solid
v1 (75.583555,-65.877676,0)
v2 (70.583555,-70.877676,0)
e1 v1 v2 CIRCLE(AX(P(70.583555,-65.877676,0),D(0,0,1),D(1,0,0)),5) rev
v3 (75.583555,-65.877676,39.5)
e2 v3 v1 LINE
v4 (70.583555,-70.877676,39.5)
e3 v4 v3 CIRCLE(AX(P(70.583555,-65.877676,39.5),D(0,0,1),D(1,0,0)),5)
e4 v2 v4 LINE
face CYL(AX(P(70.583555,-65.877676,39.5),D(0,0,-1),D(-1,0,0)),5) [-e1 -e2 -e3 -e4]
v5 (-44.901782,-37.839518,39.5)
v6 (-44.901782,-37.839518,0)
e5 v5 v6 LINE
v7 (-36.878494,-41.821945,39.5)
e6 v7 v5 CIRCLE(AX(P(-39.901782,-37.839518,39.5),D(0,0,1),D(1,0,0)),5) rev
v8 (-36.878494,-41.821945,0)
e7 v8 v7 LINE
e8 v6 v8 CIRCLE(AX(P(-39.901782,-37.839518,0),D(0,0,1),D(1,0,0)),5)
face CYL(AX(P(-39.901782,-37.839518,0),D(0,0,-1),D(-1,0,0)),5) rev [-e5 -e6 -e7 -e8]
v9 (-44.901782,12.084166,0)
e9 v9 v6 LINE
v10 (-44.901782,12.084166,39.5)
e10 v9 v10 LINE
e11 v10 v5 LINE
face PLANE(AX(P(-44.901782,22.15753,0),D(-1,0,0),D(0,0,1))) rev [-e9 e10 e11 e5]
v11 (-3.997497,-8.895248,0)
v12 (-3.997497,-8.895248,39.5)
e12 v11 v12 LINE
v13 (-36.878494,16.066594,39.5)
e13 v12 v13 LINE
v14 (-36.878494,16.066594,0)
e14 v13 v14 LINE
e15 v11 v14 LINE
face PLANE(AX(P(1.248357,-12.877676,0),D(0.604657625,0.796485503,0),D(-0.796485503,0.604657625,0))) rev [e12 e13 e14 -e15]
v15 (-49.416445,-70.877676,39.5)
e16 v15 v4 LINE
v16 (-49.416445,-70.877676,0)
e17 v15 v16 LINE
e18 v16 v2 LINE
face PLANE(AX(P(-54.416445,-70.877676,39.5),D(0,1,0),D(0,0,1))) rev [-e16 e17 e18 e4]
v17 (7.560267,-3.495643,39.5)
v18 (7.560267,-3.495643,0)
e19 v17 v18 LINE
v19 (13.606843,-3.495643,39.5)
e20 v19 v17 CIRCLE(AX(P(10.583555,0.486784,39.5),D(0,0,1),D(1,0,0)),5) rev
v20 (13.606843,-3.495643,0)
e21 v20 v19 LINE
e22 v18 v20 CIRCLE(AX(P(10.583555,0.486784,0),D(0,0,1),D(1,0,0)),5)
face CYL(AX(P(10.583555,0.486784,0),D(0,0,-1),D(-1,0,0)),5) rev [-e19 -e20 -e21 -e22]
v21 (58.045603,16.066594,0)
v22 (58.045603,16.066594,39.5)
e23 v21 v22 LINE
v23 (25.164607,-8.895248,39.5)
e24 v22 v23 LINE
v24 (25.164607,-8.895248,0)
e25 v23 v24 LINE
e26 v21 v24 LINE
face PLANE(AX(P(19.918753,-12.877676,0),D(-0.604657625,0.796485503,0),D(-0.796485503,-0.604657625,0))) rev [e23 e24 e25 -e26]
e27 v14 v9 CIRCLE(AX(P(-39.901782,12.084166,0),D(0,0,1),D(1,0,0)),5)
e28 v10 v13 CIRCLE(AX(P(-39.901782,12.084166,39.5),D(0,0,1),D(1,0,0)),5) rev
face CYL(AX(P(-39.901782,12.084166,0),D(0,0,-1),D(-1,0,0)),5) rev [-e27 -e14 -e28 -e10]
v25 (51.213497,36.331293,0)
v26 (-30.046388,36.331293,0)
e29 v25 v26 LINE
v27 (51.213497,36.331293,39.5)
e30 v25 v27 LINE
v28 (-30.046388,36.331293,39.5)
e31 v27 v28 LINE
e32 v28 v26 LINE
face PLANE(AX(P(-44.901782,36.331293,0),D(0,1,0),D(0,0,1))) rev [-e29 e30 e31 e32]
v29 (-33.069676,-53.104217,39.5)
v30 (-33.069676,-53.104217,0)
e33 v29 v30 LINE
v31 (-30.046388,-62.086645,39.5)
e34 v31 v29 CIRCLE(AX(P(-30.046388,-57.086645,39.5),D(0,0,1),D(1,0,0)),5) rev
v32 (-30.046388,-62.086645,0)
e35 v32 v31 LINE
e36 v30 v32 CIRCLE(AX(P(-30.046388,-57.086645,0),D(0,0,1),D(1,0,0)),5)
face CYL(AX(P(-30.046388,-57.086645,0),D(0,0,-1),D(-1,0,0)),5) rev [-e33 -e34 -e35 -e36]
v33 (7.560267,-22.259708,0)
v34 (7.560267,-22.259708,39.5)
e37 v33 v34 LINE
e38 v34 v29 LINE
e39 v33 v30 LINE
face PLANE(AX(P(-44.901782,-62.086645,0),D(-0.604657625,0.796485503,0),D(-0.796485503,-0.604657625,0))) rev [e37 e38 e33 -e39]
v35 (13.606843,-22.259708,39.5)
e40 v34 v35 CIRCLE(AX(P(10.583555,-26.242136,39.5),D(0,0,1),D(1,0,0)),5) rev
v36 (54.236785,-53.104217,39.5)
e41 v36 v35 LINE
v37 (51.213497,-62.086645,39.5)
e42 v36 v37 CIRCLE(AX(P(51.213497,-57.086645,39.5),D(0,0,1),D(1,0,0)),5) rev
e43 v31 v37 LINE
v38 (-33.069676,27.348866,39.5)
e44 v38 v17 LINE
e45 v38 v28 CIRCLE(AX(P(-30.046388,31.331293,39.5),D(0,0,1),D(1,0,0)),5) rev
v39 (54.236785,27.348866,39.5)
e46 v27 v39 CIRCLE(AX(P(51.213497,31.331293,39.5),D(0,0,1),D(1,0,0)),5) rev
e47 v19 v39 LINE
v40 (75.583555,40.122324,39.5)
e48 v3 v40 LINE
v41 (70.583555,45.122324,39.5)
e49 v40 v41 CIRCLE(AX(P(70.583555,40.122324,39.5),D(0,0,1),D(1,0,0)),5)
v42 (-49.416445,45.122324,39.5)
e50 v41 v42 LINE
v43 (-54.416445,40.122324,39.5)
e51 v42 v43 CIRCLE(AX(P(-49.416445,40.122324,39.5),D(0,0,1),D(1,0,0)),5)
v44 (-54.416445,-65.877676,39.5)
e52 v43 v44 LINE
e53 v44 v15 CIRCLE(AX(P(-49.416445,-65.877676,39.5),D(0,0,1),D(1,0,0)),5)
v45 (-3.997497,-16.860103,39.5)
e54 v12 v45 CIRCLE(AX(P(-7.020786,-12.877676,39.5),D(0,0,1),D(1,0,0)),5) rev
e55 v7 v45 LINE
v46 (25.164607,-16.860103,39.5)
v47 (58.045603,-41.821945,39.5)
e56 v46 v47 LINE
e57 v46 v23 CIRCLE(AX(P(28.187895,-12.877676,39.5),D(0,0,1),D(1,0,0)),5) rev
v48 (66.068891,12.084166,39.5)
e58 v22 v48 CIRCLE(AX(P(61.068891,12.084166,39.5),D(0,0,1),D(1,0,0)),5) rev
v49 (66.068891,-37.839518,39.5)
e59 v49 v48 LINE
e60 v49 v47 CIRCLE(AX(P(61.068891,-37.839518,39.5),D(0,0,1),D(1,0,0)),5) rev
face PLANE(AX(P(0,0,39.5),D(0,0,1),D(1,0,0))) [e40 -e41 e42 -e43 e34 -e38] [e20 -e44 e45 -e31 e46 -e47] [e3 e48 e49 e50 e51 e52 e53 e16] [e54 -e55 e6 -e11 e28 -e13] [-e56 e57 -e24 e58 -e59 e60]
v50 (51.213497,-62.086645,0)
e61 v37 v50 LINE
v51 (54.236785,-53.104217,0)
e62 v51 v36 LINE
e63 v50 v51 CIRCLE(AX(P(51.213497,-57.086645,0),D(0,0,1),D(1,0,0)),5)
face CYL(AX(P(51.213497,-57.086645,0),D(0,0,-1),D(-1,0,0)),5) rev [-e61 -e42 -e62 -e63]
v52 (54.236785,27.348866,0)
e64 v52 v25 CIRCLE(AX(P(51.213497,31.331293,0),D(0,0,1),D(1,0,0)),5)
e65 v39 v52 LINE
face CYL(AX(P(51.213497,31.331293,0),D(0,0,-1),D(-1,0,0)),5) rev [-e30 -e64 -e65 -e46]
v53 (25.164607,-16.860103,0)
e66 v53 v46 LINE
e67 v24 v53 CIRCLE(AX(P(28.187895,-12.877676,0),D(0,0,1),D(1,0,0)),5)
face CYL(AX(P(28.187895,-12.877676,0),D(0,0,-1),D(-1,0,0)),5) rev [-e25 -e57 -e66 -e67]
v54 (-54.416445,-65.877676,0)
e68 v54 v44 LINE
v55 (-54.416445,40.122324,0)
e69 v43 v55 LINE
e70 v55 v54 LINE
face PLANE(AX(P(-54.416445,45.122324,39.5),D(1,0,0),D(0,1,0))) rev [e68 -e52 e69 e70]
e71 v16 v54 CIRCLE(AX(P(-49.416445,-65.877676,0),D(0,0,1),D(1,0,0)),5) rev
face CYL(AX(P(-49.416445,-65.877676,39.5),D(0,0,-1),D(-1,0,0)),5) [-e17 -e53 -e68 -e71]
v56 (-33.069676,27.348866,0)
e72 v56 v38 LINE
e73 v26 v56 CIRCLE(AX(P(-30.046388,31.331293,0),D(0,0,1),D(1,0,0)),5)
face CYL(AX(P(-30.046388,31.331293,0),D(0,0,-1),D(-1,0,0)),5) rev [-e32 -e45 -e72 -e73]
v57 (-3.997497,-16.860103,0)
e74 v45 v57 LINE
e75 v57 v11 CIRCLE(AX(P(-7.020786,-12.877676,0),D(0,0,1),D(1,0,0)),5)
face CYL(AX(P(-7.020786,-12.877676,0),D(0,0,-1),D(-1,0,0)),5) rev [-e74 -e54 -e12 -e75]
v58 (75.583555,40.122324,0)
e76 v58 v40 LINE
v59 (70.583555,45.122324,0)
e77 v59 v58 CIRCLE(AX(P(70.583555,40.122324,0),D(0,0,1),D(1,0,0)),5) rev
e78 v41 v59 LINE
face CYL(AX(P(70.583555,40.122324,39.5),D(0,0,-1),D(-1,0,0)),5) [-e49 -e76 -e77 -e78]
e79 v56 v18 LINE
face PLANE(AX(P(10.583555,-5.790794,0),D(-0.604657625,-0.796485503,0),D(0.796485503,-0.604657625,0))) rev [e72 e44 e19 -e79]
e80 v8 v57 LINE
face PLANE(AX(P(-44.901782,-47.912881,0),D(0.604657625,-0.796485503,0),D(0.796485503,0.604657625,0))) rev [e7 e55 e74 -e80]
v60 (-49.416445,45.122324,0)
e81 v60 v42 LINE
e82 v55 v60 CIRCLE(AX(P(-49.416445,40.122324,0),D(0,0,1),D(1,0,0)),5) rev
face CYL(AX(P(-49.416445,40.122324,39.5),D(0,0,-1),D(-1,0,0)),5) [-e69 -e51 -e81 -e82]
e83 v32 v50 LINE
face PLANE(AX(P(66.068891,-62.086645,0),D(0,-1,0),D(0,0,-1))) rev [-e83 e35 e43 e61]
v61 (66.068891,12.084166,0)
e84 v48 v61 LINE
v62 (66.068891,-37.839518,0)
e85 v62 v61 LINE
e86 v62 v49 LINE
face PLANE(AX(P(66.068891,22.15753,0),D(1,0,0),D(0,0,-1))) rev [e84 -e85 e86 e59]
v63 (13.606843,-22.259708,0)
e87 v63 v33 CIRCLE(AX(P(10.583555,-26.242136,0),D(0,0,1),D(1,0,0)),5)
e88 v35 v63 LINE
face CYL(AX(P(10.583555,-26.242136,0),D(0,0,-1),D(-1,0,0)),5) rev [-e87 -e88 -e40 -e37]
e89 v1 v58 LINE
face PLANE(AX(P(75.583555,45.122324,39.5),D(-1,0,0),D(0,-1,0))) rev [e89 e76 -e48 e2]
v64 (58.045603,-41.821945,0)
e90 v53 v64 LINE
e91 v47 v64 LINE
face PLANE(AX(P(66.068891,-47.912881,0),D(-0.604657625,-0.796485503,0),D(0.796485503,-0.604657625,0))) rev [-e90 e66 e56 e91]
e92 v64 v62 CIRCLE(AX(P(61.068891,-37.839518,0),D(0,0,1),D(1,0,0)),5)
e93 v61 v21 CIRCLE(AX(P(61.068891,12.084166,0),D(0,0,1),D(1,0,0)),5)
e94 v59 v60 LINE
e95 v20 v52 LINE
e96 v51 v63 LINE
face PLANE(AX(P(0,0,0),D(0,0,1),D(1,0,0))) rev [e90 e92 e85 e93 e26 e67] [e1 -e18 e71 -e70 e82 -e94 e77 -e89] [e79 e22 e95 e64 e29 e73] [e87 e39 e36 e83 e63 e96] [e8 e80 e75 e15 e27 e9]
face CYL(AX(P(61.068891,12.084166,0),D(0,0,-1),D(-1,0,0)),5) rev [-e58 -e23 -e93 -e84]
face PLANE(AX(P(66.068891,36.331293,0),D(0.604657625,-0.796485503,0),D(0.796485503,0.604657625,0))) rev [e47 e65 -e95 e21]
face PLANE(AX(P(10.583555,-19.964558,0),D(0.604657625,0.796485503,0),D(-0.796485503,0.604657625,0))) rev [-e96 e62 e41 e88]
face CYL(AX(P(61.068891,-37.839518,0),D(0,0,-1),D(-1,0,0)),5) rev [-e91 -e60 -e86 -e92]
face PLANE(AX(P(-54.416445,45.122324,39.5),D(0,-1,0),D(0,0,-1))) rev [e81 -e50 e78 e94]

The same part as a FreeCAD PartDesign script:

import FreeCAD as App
import Part
import Sketcher
Q = App.Units.Quantity


def edges_at(feature, points):
    """Names of the edges that pass closest to the given points."""
    edges = feature.Shape.Edges
    near = lambda p: min(range(len(edges)), key=lambda i: edges[i].distToShape(Part.Vertex(*p))[0])
    return sorted({f"Edge{near(p) + 1}" for p in points})

doc = App.newDocument("Part")
body = doc.addObject("PartDesign::Body", "Body")

# Sketch on XY plane
sketch1 = body.newObject("Sketcher::SketchObject", "Sketch")
sketch1.AttachmentSupport = (doc.getObject("XY_Plane"), [""])
sketch1.MapMode = "FlatFace"
sketch1.addGeometry([
    Part.LineSegment(App.Vector(-54.416445, 45.122324, 0), App.Vector(-54.416445, -70.877676, 0)),
    Part.LineSegment(App.Vector(-54.416445, -70.877676, 0), App.Vector(75.583555, -70.877676, 0)),
    Part.LineSegment(App.Vector(75.583555, -70.877676, 0), App.Vector(75.583555, 45.122324, 0)),
    Part.LineSegment(App.Vector(75.583555, 45.122324, 0), App.Vector(-54.416445, 45.122324, 0)),
], False)
sketch1.addConstraint([
    Sketcher.Constraint("Coincident", 0, 2, 1, 1),
    Sketcher.Constraint("Coincident", 1, 2, 2, 1),
    Sketcher.Constraint("Coincident", 2, 2, 3, 1),
    Sketcher.Constraint("Coincident", 3, 2, 0, 1),
    Sketcher.Constraint("Vertical", 0),
    Sketcher.Constraint("Horizontal", 1),
    Sketcher.Constraint("Vertical", 2),
    Sketcher.Constraint("Horizontal", 3),
    Sketcher.Constraint("DistanceX", 1, 1, 1, 2, Q("130 mm")),
    Sketcher.Constraint("DistanceY", 0, 2, 0, 1, Q("116 mm")),
    Sketcher.Constraint("DistanceX", 0, 2, -1, 1, Q("54.416445 mm")),
    Sketcher.Constraint("DistanceY", 0, 2, -1, 1, Q("70.877676 mm")),
])
pad1 = body.newObject("PartDesign::Pad", "Pad")
pad1.Profile = sketch1
pad1.Length = 39.5

# Sketch on XY plane
sketch2 = body.newObject("Sketcher::SketchObject", "Sketch001")
sketch2.AttachmentSupport = (doc.getObject("XY_Plane"), [""])
sketch2.MapMode = "FlatFace"
sketch2.AttachmentOffset = App.Placement(App.Vector(0, 0, 39.5), App.Rotation())
sketch2.addGeometry([
    Part.LineSegment(App.Vector(66.068891, 36.331293, 0), App.Vector(-44.901782, 36.331293, 0)),  # 0
    Part.LineSegment(App.Vector(-44.901782, 36.331293, 0), App.Vector(10.583555, -5.790794, 0)),  # 1
    Part.LineSegment(App.Vector(10.583555, -5.790794, 0), App.Vector(66.068891, 36.331293, 0)),  # 2
    Part.LineSegment(App.Vector(-44.901782, 22.15753, 0), App.Vector(-44.901782, -47.912881, 0)),  # 3
    Part.LineSegment(App.Vector(-44.901782, -47.912881, 0), App.Vector(1.248357, -12.877676, 0)),  # 4
    Part.LineSegment(App.Vector(1.248357, -12.877676, 0), App.Vector(-44.901782, 22.15753, 0)),  # 5
    Part.LineSegment(App.Vector(66.068891, 22.15753, 0), App.Vector(19.918753, -12.877676, 0)),  # 6
    Part.LineSegment(App.Vector(19.918753, -12.877676, 0), App.Vector(66.068891, -47.912881, 0)),  # 7
    Part.LineSegment(App.Vector(66.068891, -47.912881, 0), App.Vector(66.068891, 22.15753, 0)),  # 8
    Part.LineSegment(App.Vector(10.583555, -19.964558, 0), App.Vector(-44.901782, -62.086645, 0)),  # 9
    Part.LineSegment(App.Vector(-44.901782, -62.086645, 0), App.Vector(66.068891, -62.086645, 0)),  # 10
    Part.LineSegment(App.Vector(66.068891, -62.086645, 0), App.Vector(10.583555, -19.964558, 0)),  # 11
], False)
sketch2.addConstraint([
    Sketcher.Constraint("Coincident", 0, 2, 1, 1),
    Sketcher.Constraint("Coincident", 1, 2, 2, 1),
    Sketcher.Constraint("Coincident", 2, 2, 0, 1),
    Sketcher.Constraint("Coincident", 3, 2, 4, 1),
    Sketcher.Constraint("Coincident", 4, 2, 5, 1),
    Sketcher.Constraint("Coincident", 5, 2, 3, 1),
    Sketcher.Constraint("Coincident", 6, 2, 7, 1),
    Sketcher.Constraint("Coincident", 7, 2, 8, 1),
    Sketcher.Constraint("Coincident", 8, 2, 6, 1),
    Sketcher.Constraint("Coincident", 9, 2, 10, 1),
    Sketcher.Constraint("Coincident", 10, 2, 11, 1),
    Sketcher.Constraint("Coincident", 11, 2, 9, 1),
    Sketcher.Constraint("Horizontal", 0),
    Sketcher.Constraint("Vertical", 3),
    Sketcher.Constraint("Vertical", 8),
    Sketcher.Constraint("Horizontal", 10),
    Sketcher.Constraint("Parallel", 2, 4),
    Sketcher.Constraint("Parallel", 1, 5),
    Sketcher.Constraint("Parallel", 4, 6),
    Sketcher.Constraint("Parallel", 5, 7),
    Sketcher.Constraint("Parallel", 6, 9),
    Sketcher.Constraint("Parallel", 7, 11),
    Sketcher.Constraint("Horizontal", 4, 2, 6, 2),
    Sketcher.Constraint("Horizontal", 3, 2, 7, 2),
    Sketcher.Constraint("Horizontal", 5, 2, 8, 2),
    Sketcher.Constraint("Vertical", 0, 2, 3, 2),
    Sketcher.Constraint("Vertical", 2, 2, 7, 2),
    Sketcher.Constraint("Vertical", 5, 2, 9, 2),
    Sketcher.Constraint("Vertical", 8, 2, 10, 2),
    Sketcher.Constraint("DistanceY", 3, 2, 3, 1, Q("70.070411 mm")),
    Sketcher.Constraint("Distance", 4, Q("57.942221 mm")),
    Sketcher.Constraint("DistanceX", 0, 2, 0, 1, Q("110.970673 mm")),
    Sketcher.Constraint("DistanceX", -1, 1, 2, 2, Q("66.068891 mm")),
    Sketcher.Constraint("DistanceY", 3, 2, -1, 1, Q("47.912881 mm")),
    Sketcher.Constraint("DistanceY", 4, 2, 1, 2, Q("7.086882 mm")),
    Sketcher.Constraint("DistanceY", 9, 2, 4, 2, Q("49.208969 mm")),
])
pocket1 = body.newObject("PartDesign::Pocket", "Pocket")
pocket1.Profile = sketch2
pocket1.Length = 39.5
doc.recompute()

fillet = body.newObject("PartDesign::Fillet", "Fillet")
fillet.Base = (pocket1, edges_at(pocket1, [
    (10.584, -5.791, 19.75),
    (-44.902, 36.331, 19.75),
    (66.069, 36.331, 19.75),
    (-44.902, 22.158, 19.75),
    (1.248, -12.878, 19.75),
    (-44.902, -47.913, 19.75),
    (66.069, -47.913, 19.75),
    (19.919, -12.878, 19.75),
    (66.069, 22.158, 19.75),
    (66.069, -62.087, 19.75),
    (-44.902, -62.087, 19.75),
    (10.584, -19.965, 19.75),
    (-54.416, 45.122, 19.75),
    (75.584, 45.122, 19.75),
    (75.584, -70.878, 19.75),
    (-54.416, -70.878, 19.75),
]))
fillet.Radius = 5

doc.recompute()
